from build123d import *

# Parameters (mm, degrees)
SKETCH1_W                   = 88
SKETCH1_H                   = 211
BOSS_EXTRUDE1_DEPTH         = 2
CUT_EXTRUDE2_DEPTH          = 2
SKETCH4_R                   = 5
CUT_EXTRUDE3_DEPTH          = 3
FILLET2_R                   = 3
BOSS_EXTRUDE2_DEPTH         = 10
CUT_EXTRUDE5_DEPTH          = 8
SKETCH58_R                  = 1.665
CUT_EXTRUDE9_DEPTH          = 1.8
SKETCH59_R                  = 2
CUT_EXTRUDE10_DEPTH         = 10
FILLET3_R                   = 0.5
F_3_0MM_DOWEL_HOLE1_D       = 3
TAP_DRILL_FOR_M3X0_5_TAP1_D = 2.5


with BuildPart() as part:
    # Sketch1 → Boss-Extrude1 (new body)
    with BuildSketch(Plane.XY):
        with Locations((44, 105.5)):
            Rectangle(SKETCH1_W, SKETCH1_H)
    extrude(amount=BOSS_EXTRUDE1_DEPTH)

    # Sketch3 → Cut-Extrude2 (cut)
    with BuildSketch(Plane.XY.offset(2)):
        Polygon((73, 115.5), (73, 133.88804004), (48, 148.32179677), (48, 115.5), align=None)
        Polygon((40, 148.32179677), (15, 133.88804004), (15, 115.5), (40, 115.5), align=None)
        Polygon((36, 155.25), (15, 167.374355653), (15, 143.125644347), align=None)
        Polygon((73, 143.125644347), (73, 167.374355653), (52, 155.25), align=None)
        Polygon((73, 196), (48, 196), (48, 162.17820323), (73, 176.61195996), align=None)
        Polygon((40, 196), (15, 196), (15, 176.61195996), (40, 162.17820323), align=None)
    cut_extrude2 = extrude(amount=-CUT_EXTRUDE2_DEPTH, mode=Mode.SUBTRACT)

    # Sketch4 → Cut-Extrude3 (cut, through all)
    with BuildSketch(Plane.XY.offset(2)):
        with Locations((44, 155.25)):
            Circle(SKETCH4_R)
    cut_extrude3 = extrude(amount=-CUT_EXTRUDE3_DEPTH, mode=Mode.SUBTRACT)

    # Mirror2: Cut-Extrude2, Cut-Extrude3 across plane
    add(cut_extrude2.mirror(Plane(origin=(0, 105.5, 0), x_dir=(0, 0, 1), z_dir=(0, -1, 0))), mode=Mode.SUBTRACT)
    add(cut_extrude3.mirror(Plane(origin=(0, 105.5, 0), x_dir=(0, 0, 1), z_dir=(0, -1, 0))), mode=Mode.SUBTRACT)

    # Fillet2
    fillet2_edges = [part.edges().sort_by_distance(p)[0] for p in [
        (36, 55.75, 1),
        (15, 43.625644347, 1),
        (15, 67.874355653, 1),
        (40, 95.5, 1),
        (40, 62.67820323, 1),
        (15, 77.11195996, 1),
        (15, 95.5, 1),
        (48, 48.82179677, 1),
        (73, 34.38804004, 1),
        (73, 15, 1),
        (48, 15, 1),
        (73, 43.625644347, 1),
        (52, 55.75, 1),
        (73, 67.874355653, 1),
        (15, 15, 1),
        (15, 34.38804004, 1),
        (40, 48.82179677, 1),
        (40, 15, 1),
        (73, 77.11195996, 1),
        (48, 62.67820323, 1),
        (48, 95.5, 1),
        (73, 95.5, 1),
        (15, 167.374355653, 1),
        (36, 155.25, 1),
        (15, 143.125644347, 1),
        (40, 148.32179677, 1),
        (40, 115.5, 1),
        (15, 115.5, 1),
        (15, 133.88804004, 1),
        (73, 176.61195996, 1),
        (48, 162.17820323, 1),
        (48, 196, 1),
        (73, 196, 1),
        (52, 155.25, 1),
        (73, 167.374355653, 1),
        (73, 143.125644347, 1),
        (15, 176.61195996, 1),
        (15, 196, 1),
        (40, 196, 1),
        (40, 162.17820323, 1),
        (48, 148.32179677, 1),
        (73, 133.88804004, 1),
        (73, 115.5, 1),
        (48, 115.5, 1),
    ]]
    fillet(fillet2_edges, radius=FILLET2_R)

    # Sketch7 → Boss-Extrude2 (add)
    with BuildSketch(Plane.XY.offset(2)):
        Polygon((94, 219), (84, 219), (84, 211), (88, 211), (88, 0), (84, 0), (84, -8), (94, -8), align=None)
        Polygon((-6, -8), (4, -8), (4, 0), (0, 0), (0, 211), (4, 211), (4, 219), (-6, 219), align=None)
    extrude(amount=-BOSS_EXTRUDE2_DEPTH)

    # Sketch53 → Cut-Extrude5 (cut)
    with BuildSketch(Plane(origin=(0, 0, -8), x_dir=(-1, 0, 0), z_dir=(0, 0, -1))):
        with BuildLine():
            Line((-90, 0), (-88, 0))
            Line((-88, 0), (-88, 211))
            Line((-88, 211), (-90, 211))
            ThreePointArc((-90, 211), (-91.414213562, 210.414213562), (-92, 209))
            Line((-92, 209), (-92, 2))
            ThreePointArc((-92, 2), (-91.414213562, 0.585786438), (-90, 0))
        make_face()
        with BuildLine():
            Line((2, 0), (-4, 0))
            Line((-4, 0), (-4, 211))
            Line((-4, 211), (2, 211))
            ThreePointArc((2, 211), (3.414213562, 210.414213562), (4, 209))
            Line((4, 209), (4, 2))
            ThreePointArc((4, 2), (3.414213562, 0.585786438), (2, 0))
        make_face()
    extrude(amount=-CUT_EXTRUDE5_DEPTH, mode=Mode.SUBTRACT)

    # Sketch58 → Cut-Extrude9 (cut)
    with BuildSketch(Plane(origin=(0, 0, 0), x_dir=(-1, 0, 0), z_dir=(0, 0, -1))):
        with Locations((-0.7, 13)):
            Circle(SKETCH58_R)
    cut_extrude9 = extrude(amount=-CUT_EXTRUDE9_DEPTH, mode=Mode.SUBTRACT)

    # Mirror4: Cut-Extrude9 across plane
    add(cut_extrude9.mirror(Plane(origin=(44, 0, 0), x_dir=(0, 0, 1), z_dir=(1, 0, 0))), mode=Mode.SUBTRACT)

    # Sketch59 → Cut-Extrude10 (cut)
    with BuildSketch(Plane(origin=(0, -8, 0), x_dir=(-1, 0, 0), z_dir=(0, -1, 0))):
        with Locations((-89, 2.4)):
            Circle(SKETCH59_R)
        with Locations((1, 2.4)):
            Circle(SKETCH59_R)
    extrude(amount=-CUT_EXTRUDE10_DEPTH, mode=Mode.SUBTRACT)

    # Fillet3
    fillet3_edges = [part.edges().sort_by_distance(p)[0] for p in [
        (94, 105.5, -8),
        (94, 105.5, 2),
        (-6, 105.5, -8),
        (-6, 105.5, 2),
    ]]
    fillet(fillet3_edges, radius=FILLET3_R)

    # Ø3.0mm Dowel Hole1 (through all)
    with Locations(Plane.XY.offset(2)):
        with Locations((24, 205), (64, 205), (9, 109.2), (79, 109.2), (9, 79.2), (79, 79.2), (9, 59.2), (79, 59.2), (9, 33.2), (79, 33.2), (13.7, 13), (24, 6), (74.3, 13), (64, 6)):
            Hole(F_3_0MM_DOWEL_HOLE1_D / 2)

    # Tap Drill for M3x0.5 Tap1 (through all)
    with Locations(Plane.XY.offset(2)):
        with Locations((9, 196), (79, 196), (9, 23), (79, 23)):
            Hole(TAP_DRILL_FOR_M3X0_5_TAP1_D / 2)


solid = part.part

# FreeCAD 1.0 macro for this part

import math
import FreeCAD as App
import Part
import Sketcher

V = App.Vector
Q = App.Units.Quantity


def edges_at(feature, points):
    """Names of the edges that pass closest to the given points."""
    edges = feature.Shape.Edges
    near = lambda p: min(range(len(edges)), key=lambda i: edges[i].distToShape(Part.Vertex(*p))[0])
    return sorted({f"Edge{near(p) + 1}" for p in points})

doc = App.newDocument("Part")
body = doc.addObject("PartDesign::Body", "Body")

# Sketch on XY plane
sketch1 = body.newObject("Sketcher::SketchObject", "Sketch")
sketch1.AttachmentSupport = (doc.getObject("XY_Plane"), [""])
sketch1.MapMode = "FlatFace"
sketch1.addGeometry([
    Part.LineSegment(V(0, 211, 0), V(0, 0, 0)),
    Part.LineSegment(V(0, 0, 0), V(88, 0, 0)),
    Part.LineSegment(V(88, 0, 0), V(88, 211, 0)),
    Part.LineSegment(V(88, 211, 0), V(0, 211, 0)),
], False)
sketch1.addConstraint([
    Sketcher.Constraint("Coincident", 0, 2, 1, 1),
    Sketcher.Constraint("Coincident", 1, 2, 2, 1),
    Sketcher.Constraint("Coincident", 2, 2, 3, 1),
    Sketcher.Constraint("Coincident", 3, 2, 0, 1),
    Sketcher.Constraint("Vertical", 0),
    Sketcher.Constraint("Horizontal", 1),
    Sketcher.Constraint("Vertical", 2),
    Sketcher.Constraint("Horizontal", 3),
    Sketcher.Constraint("Coincident", 0, 2, -1, 1),
    Sketcher.Constraint("DistanceX", 1, 1, 1, 2, 88.0),
    Sketcher.Constraint("DistanceY", 0, 2, 0, 1, 211.0),
])
pad1 = body.newObject("PartDesign::Pad", "Pad")
pad1.Profile = sketch1
pad1.Length = 2

# Sketch on XY plane
sketch2 = body.newObject("Sketcher::SketchObject", "Sketch001")
sketch2.AttachmentSupport = (doc.getObject("XY_Plane"), [""])
sketch2.MapMode = "FlatFace"
sketch2.AttachmentOffset = App.Placement(V(0, 0, 2), App.Rotation())
sketch2.addGeometry([
    Part.LineSegment(V(73, 116, 0), V(73, 134, 0)),  # 0
    Part.LineSegment(V(73, 134, 0), V(48, 148, 0)),  # 1
    Part.LineSegment(V(48, 148, 0), V(48, 116, 0)),  # 2
    Part.LineSegment(V(48, 116, 0), V(73, 116, 0)),  # 3
    Part.LineSegment(V(40, 148, 0), V(15, 134, 0)),  # 4
    Part.LineSegment(V(15, 134, 0), V(15, 116, 0)),  # 5
    Part.LineSegment(V(15, 116, 0), V(40, 116, 0)),  # 6
    Part.LineSegment(V(40, 116, 0), V(40, 148, 0)),  # 7
    Part.LineSegment(V(36, 155, 0), V(15, 167, 0)),  # 8
    Part.LineSegment(V(15, 167, 0), V(15, 143, 0)),  # 9
    Part.LineSegment(V(15, 143, 0), V(36, 155, 0)),  # 10
    Part.LineSegment(V(73, 143, 0), V(73, 167, 0)),  # 11
    Part.LineSegment(V(73, 167, 0), V(52, 155, 0)),  # 12
    Part.LineSegment(V(52, 155, 0), V(73, 143, 0)),  # 13
    Part.LineSegment(V(73, 196, 0), V(48, 196, 0)),  # 14
    Part.LineSegment(V(48, 196, 0), V(48, 162, 0)),  # 15
    Part.LineSegment(V(48, 162, 0), V(73, 177, 0)),  # 16
    Part.LineSegment(V(73, 177, 0), V(73, 196, 0)),  # 17
    Part.LineSegment(V(40, 196, 0), V(15, 196, 0)),  # 18
    Part.LineSegment(V(15, 196, 0), V(15, 177, 0)),  # 19
    Part.LineSegment(V(15, 177, 0), V(40, 162, 0)),  # 20
    Part.LineSegment(V(40, 162, 0), V(40, 196, 0)),  # 21
], False)
sketch2.addConstraint([
    Sketcher.Constraint("Coincident", 0, 2, 1, 1),
    Sketcher.Constraint("Coincident", 1, 2, 2, 1),
    Sketcher.Constraint("Coincident", 2, 2, 3, 1),
    Sketcher.Constraint("Coincident", 3, 2, 0, 1),
    Sketcher.Constraint("Coincident", 4, 2, 5, 1),
    Sketcher.Constraint("Coincident", 5, 2, 6, 1),
    Sketcher.Constraint("Coincident", 6, 2, 7, 1),
    Sketcher.Constraint("Coincident", 7, 2, 4, 1),
    Sketcher.Constraint("Coincident", 8, 2, 9, 1),
    Sketcher.Constraint("Coincident", 9, 2, 10, 1),
    Sketcher.Constraint("Coincident", 10, 2, 8, 1),
    Sketcher.Constraint("Coincident", 11, 2, 12, 1),
    Sketcher.Constraint("Coincident", 12, 2, 13, 1),
    Sketcher.Constraint("Coincident", 13, 2, 11, 1),
    Sketcher.Constraint("Coincident", 14, 2, 15, 1),
    Sketcher.Constraint("Coincident", 15, 2, 16, 1),
    Sketcher.Constraint("Coincident", 16, 2, 17, 1),
    Sketcher.Constraint("Coincident", 17, 2, 14, 1),
    Sketcher.Constraint("Coincident", 18, 2, 19, 1),
    Sketcher.Constraint("Coincident", 19, 2, 20, 1),
    Sketcher.Constraint("Coincident", 20, 2, 21, 1),
    Sketcher.Constraint("Coincident", 21, 2, 18, 1),
    Sketcher.Constraint("Vertical", 0),
    Sketcher.Constraint("Vertical", 2),
    Sketcher.Constraint("Horizontal", 3),
    Sketcher.Constraint("Vertical", 5),
    Sketcher.Constraint("Horizontal", 6),
    Sketcher.Constraint("Vertical", 7),
    Sketcher.Constraint("Vertical", 9),
    Sketcher.Constraint("Vertical", 11),
    Sketcher.Constraint("Horizontal", 14),
    Sketcher.Constraint("Vertical", 15),
    Sketcher.Constraint("Vertical", 17),
    Sketcher.Constraint("Horizontal", 18),
    Sketcher.Constraint("Vertical", 19),
    Sketcher.Constraint("Vertical", 21),
    Sketcher.Constraint("Parallel", 1, 8),
    Sketcher.Constraint("Parallel", 4, 10),
    Sketcher.Constraint("Parallel", 10, 12),
    Sketcher.Constraint("Parallel", 8, 13),
    Sketcher.Constraint("Parallel", 12, 16),
    Sketcher.Constraint("Parallel", 13, 20),
    Sketcher.Constraint("Horizontal", 0, 2, 4, 2),
    Sketcher.Constraint("Horizontal", 3, 2, 5, 2),
    Sketcher.Constraint("Horizontal", 1, 2, 7, 2),
    Sketcher.Constraint("Horizontal", 8, 2, 11, 2),
    Sketcher.Constraint("Horizontal", 10, 2, 12, 2),
    Sketcher.Constraint("Horizontal", 9, 2, 13, 2),
    Sketcher.Constraint("Horizontal", 17, 2, 18, 2),
    Sketcher.Constraint("Horizontal", 16, 2, 19, 2),
    Sketcher.Constraint("Horizontal", 15, 2, 20, 2),
    Sketcher.Constraint("Vertical", 5, 2, 8, 2),
    Sketcher.Constraint("Vertical", 3, 2, 11, 2),
    Sketcher.Constraint("Vertical", 2, 2, 14, 2),
    Sketcher.Constraint("Vertical", 13, 2, 16, 2),
    Sketcher.Constraint("Vertical", 9, 2, 18, 2),
    Sketcher.Constraint("DistanceX", 3, 1, 3, 2, 25.0),
    Sketcher.Constraint("Angle", 1, Q("150 deg")),
    Sketcher.Constraint("DistanceX", -1, 1, 0, 2, 73.0),
    Sketcher.Constraint("DistanceX", -1, 1, 4, 2, 15.0),
    Sketcher.Constraint("DistanceX", -1, 1, 10, 2, 36.0),
    Sketcher.Constraint("DistanceY", -1, 1, 14, 2, 196.0),
    Sketcher.Constraint("DistanceY", -1, 1, 2, 2, 115.5),
    Sketcher.Constraint("DistanceY", -1, 1, 10, 2, 155.25),
    Sketcher.Constraint("DistanceY", 0, 1, 0, 2, 18.38804),
    Sketcher.Constraint("DistanceY", 17, 1, 17, 2, 19.38804),
])
pocket1 = body.newObject("PartDesign::Pocket", "Pocket")
pocket1.Profile = sketch2
pocket1.Length = 2

# Sketch on XY plane
sketch3 = body.newObject("Sketcher::SketchObject", "Sketch002")
sketch3.AttachmentSupport = (doc.getObject("XY_Plane"), [""])
sketch3.MapMode = "FlatFace"
sketch3.AttachmentOffset = App.Placement(V(0, 0, 2), App.Rotation())
sketch3.addGeometry(Part.Circle(V(44, 155, 0), V(0, 0, 1), 5), False)
sketch3.addConstraint([
    Sketcher.Constraint("Diameter", 0, 10.0),
    Sketcher.Constraint("DistanceX", -1, 1, 0, 3, 44.0),
    Sketcher.Constraint("DistanceY", -1, 1, 0, 3, 155.25),
])
pocket2 = body.newObject("PartDesign::Pocket", "Pocket001")
pocket2.Profile = sketch3
pocket2.Type = "ThroughAll"
doc.recompute()

datumplane = body.newObject("PartDesign::Plane", "DatumPlane")
datumplane.AttachmentSupport = (doc.getObject("XZ_Plane"), [""])
datumplane.MapMode = "FlatFace"
datumplane.AttachmentOffset = App.Placement(V(0, 0, -105.5), App.Rotation())
mirrored = body.newObject("PartDesign::Mirrored", "Mirrored")
mirrored.Originals = [pocket1, pocket2]
mirrored.MirrorPlane = (datumplane, [""])
body.Tip = mirrored
doc.recompute()

fillet = body.newObject("PartDesign::Fillet", "Fillet")
fillet.Base = (mirrored, edges_at(mirrored, [
    (36, 55.75, 1),
    (15, 43.626, 1),
    (15, 67.874, 1),
    (40, 95.5, 1),
    (40, 62.678, 1),
    (15, 77.112, 1),
    (15, 95.5, 1),
    (48, 48.822, 1),
    (73, 34.388, 1),
    (73, 15, 1),
    (48, 15, 1),
    (73, 43.626, 1),
    (52, 55.75, 1),
    (73, 67.874, 1),
    (15, 15, 1),
    (15, 34.388, 1),
    (40, 48.822, 1),
    (40, 15, 1),
    (73, 77.112, 1),
    (48, 62.678, 1),
    (48, 95.5, 1),
    (73, 95.5, 1),
    (15, 167.374, 1),
    (36, 155.25, 1),
    (15, 143.126, 1),
    (40, 148.322, 1),
    (40, 115.5, 1),
    (15, 115.5, 1),
    (15, 133.888, 1),
    (73, 176.612, 1),
    (48, 162.178, 1),
    (48, 196, 1),
    (73, 196, 1),
    (52, 155.25, 1),
    (73, 167.374, 1),
    (73, 143.126, 1),
    (15, 176.612, 1),
    (15, 196, 1),
    (40, 196, 1),
    (40, 162.178, 1),
    (48, 148.322, 1),
    (73, 133.888, 1),
    (73, 115.5, 1),
    (48, 115.5, 1),
]))
fillet.Radius = 3

# Sketch on XY plane
sketch4 = body.newObject("Sketcher::SketchObject", "Sketch003")
sketch4.AttachmentSupport = (doc.getObject("XY_Plane"), [""])
sketch4.MapMode = "FlatFace"
sketch4.AttachmentOffset = App.Placement(V(0, 0, 2), App.Rotation())
sketch4.addGeometry([
    Part.LineSegment(V(94, 219, 0), V(84, 219, 0)),  # 0
    Part.LineSegment(V(84, 219, 0), V(84, 211, 0)),  # 1
    Part.LineSegment(V(84, 211, 0), V(88, 211, 0)),  # 2
    Part.LineSegment(V(88, 211, 0), V(88, 0, 0)),  # 3
    Part.LineSegment(V(88, 0, 0), V(84, 0, 0)),  # 4
    Part.LineSegment(V(84, 0, 0), V(84, -8, 0)),  # 5
    Part.LineSegment(V(84, -8, 0), V(94, -8, 0)),  # 6
    Part.LineSegment(V(94, -8, 0), V(94, 219, 0)),  # 7
    Part.LineSegment(V(-6, -8, 0), V(4, -8, 0)),  # 8
    Part.LineSegment(V(4, -8, 0), V(4, 0, 0)),  # 9
    Part.LineSegment(V(4, 0, 0), V(0, 0, 0)),  # 10
    Part.LineSegment(V(0, 0, 0), V(0, 211, 0)),  # 11
    Part.LineSegment(V(0, 211, 0), V(4, 211, 0)),  # 12
    Part.LineSegment(V(4, 211, 0), V(4, 219, 0)),  # 13
    Part.LineSegment(V(4, 219, 0), V(-6, 219, 0)),  # 14
    Part.LineSegment(V(-6, 219, 0), V(-6, -8, 0)),  # 15
], False)
sketch4.addConstraint([
    Sketcher.Constraint("Coincident", 0, 2, 1, 1),
    Sketcher.Constraint("Coincident", 1, 2, 2, 1),
    Sketcher.Constraint("Coincident", 2, 2, 3, 1),
    Sketcher.Constraint("Coincident", 3, 2, 4, 1),
    Sketcher.Constraint("Coincident", 4, 2, 5, 1),
    Sketcher.Constraint("Coincident", 5, 2, 6, 1),
    Sketcher.Constraint("Coincident", 6, 2, 7, 1),
    Sketcher.Constraint("Coincident", 7, 2, 0, 1),
    Sketcher.Constraint("Coincident", 8, 2, 9, 1),
    Sketcher.Constraint("Coincident", 9, 2, 10, 1),
    Sketcher.Constraint("Coincident", 10, 2, 11, 1),
    Sketcher.Constraint("Coincident", 11, 2, 12, 1),
    Sketcher.Constraint("Coincident", 12, 2, 13, 1),
    Sketcher.Constraint("Coincident", 13, 2, 14, 1),
    Sketcher.Constraint("Coincident", 14, 2, 15, 1),
    Sketcher.Constraint("Coincident", 15, 2, 8, 1),
    Sketcher.Constraint("Horizontal", 0),
    Sketcher.Constraint("Vertical", 1),
    Sketcher.Constraint("Horizontal", 2),
    Sketcher.Constraint("Vertical", 3),
    Sketcher.Constraint("Horizontal", 4),
    Sketcher.Constraint("Vertical", 5),
    Sketcher.Constraint("Horizontal", 6),
    Sketcher.Constraint("Vertical", 7),
    Sketcher.Constraint("Horizontal", 8),
    Sketcher.Constraint("Vertical", 9),
    Sketcher.Constraint("Horizontal", 10),
    Sketcher.Constraint("Vertical", 11),
    Sketcher.Constraint("Horizontal", 12),
    Sketcher.Constraint("Vertical", 13),
    Sketcher.Constraint("Horizontal", 14),
    Sketcher.Constraint("Vertical", 15),
    Sketcher.Constraint("Coincident", 10, 2, -1, 1),
    Sketcher.Constraint("PointOnObject", 3, 2, -1),
    Sketcher.Constraint("Horizontal", 6, 2, 8, 2),
    Sketcher.Constraint("Horizontal", 2, 2, 11, 2),
    Sketcher.Constraint("Horizontal", 7, 2, 13, 2),
    Sketcher.Constraint("Vertical", 1, 2, 4, 2),
    Sketcher.Constraint("Vertical", 9, 2, 12, 2),
    Sketcher.Constraint("Equal", 6, 8),
    Sketcher.Constraint("Equal", 4, 10),
    Sketcher.Constraint("Equal", 1, 5),
    Sketcher.Constraint("DistanceX", 0, 2, 0, 1, 10.0),
    Sketcher.Constraint("DistanceX", 2, 1, 2, 2, 4.0),
    Sketcher.Constraint("DistanceY", 1, 2, 1, 1, 8.0),
    Sketcher.Constraint("DistanceY", 3, 2, 3, 1, 211.0),
    Sketcher.Constraint("DistanceX", -1, 1, 0, 2, 84.0),
])
pad2 = body.newObject("PartDesign::Pad", "Pad001")
pad2.Profile = sketch4
pad2.Length = 10
pad2.Reversed = True

# Sketch on XY plane
sketch5 = body.newObject("Sketcher::SketchObject", "Sketch004")
sketch5.AttachmentSupport = (doc.getObject("XY_Plane"), [""])
sketch5.MapMode = "FlatFace"
sketch5.AttachmentOffset = App.Placement(V(0, 0, -8), App.Rotation())
sketch5.addGeometry([
    Part.LineSegment(V(90, 0, 0), V(88, 0, 0)),  # 0
    Part.LineSegment(V(88, 0, 0), V(88, 211, 0)),  # 1
    Part.LineSegment(V(88, 211, 0), V(90, 211, 0)),  # 2
    Part.ArcOfCircle(Part.Circle(V(90, 209, 0), V(0, 0, 1), 2), math.radians(0), math.radians(90)),  # 3
    Part.LineSegment(V(92, 209, 0), V(92, 2, 0)),  # 4
    Part.ArcOfCircle(Part.Circle(V(90, 2, 0), V(0, 0, 1), 2), math.radians(-90), math.radians(0)),  # 5
    Part.LineSegment(V(4, 0, 0), V(-2, 0, 0)),  # 6
    Part.ArcOfCircle(Part.Circle(V(-2, 2, 0), V(0, 0, 1), 2), math.radians(-180), math.radians(-90)),  # 7
    Part.LineSegment(V(-4, 2, 0), V(-4, 209, 0)),  # 8
    Part.ArcOfCircle(Part.Circle(V(-2, 209, 0), V(0, 0, 1), 2), math.radians(90), math.radians(180)),  # 9
    Part.LineSegment(V(-2, 211, 0), V(4, 211, 0)),  # 10
    Part.LineSegment(V(4, 211, 0), V(4, 0, 0)),  # 11
], False)
sketch5.addConstraint([
    Sketcher.Constraint("Coincident", 0, 2, 1, 1),
    Sketcher.Constraint("Coincident", 1, 2, 2, 1),
    Sketcher.Constraint("Tangent", 2, 2, 3, 2),
    Sketcher.Constraint("Tangent", 3, 1, 4, 1),
    Sketcher.Constraint("Tangent", 4, 2, 5, 2),
    Sketcher.Constraint("Tangent", 5, 1, 0, 1),
    Sketcher.Constraint("Tangent", 6, 2, 7, 2),
    Sketcher.Constraint("Tangent", 7, 1, 8, 1),
    Sketcher.Constraint("Tangent", 8, 2, 9, 2),
    Sketcher.Constraint("Tangent", 9, 1, 10, 1),
    Sketcher.Constraint("Coincident", 10, 2, 11, 1),
    Sketcher.Constraint("Coincident", 11, 2, 6, 1),
    Sketcher.Constraint("Horizontal", 0),
    Sketcher.Constraint("Vertical", 1),
    Sketcher.Constraint("Horizontal", 2),
    Sketcher.Constraint("Vertical", 4),
    Sketcher.Constraint("Horizontal", 6),
    Sketcher.Constraint("Vertical", 8),
    Sketcher.Constraint("Horizontal", 10),
    Sketcher.Constraint("Vertical", 11),
    Sketcher.Constraint("Equal", 3, 5),
    Sketcher.Constraint("Equal", 5, 7),
    Sketcher.Constraint("Equal", 7, 9),
    Sketcher.Constraint("PointOnObject", 0, 2, -1),
    Sketcher.Constraint("PointOnObject", 6, 2, -1),
    Sketcher.Constraint("Horizontal", 3, 3, 9, 3),
    Sketcher.Constraint("Radius", 3, 2.0),
    Sketcher.Constraint("DistanceX", 0, 2, 0, 1, 2.0),
    Sketcher.Constraint("DistanceX", 6, 2, 6, 1, 6.0),
    Sketcher.Constraint("DistanceY", 1, 1, 1, 2, 211.0),
    Sketcher.Constraint("DistanceX", -1, 1, 3, 3, 90.0),
    Sketcher.Constraint("DistanceX", 7, 3, -1, 1, 2.0),
])
pocket3 = body.newObject("PartDesign::Pocket", "Pocket002")
pocket3.Profile = sketch5
pocket3.Length = 8
pocket3.Reversed = True

# Sketch on XY plane
sketch6 = body.newObject("Sketcher::SketchObject", "Sketch005")
sketch6.AttachmentSupport = (doc.getObject("XY_Plane"), [""])
sketch6.MapMode = "FlatFace"
sketch6.addGeometry(Part.Circle(V(0.7, 13, 0), V(0, 0, 1), 1.7), False)
sketch6.addConstraint([
    Sketcher.Constraint("Diameter", 0, 3.33),
    Sketcher.Constraint("DistanceY", -1, 1, 0, 3, 13.0),
    Sketcher.Constraint("DistanceX", -1, 1, 0, 3, 0.7),
])
pocket4 = body.newObject("PartDesign::Pocket", "Pocket003")
pocket4.Profile = sketch6
pocket4.Length = 1.8
pocket4.Reversed = True
doc.recompute()

datumplane2 = body.newObject("PartDesign::Plane", "DatumPlane001")
datumplane2.AttachmentSupport = (doc.getObject("YZ_Plane"), [""])
datumplane2.MapMode = "FlatFace"
datumplane2.AttachmentOffset = App.Placement(V(0, 0, 44), App.Rotation())
mirrored2 = body.newObject("PartDesign::Mirrored", "Mirrored001")
mirrored2.Originals = [pocket4]
mirrored2.MirrorPlane = (datumplane2, [""])
body.Tip = mirrored2

# Sketch on XZ plane
sketch7 = body.newObject("Sketcher::SketchObject", "Sketch006")
sketch7.AttachmentSupport = (doc.getObject("XZ_Plane"), [""])
sketch7.MapMode = "FlatFace"
sketch7.AttachmentOffset = App.Placement(V(0, 0, 8), App.Rotation())
sketch7.addGeometry([
    Part.Circle(V(89, -2.4, 0), V(0, 0, 1), 2),
    Part.Circle(V(-1, -2.4, 0), V(0, 0, 1), 2),
], False)
sketch7.addConstraint([
    Sketcher.Constraint("Equal", 0, 1),
    Sketcher.Constraint("Horizontal", 0, 3, 1, 3),
    Sketcher.Constraint("Diameter", 0, 4.0),
    Sketcher.Constraint("DistanceX", -1, 1, 0, 3, 89.0),
    Sketcher.Constraint("DistanceX", 1, 3, -1, 1, 1.0),
    Sketcher.Constraint("DistanceY", 0, 3, -1, 1, 2.4),
])
pocket5 = body.newObject("PartDesign::Pocket", "Pocket004")
pocket5.Profile = sketch7
pocket5.Length = 10
doc.recompute()

fillet2 = body.newObject("PartDesign::Fillet", "Fillet001")
fillet2.Base = (pocket5, edges_at(pocket5, [
    (94, 105.5, -8),
    (94, 105.5, 2),
    (-6, 105.5, -8),
    (-6, 105.5, 2),
]))
fillet2.Radius = 0.5

# Sketch on XY plane
sketch8 = body.newObject("Sketcher::SketchObject", "Sketch007")
sketch8.AttachmentSupport = (doc.getObject("XY_Plane"), [""])
sketch8.MapMode = "FlatFace"
sketch8.AttachmentOffset = App.Placement(V(0, 0, 2), App.Rotation())
sketch8.addGeometry([
    Part.Circle(V(24, 205, 0), V(0, 0, 1), 1.5),  # 0
    Part.Circle(V(64, 205, 0), V(0, 0, 1), 1.5),  # 1
    Part.Circle(V(9, 109.2, 0), V(0, 0, 1), 1.5),  # 2
    Part.Circle(V(79, 109.2, 0), V(0, 0, 1), 1.5),  # 3
    Part.Circle(V(9, 79.2, 0), V(0, 0, 1), 1.5),  # 4
    Part.Circle(V(79, 79.2, 0), V(0, 0, 1), 1.5),  # 5
    Part.Circle(V(9, 59.2, 0), V(0, 0, 1), 1.5),  # 6
    Part.Circle(V(79, 59.2, 0), V(0, 0, 1), 1.5),  # 7
    Part.Circle(V(9, 33.2, 0), V(0, 0, 1), 1.5),  # 8
    Part.Circle(V(79, 33.2, 0), V(0, 0, 1), 1.5),  # 9
    Part.Circle(V(13.7, 13, 0), V(0, 0, 1), 1.5),  # 10
    Part.Circle(V(24, 6, 0), V(0, 0, 1), 1.5),  # 11
    Part.Circle(V(74.3, 13, 0), V(0, 0, 1), 1.5),  # 12
    Part.Circle(V(64, 6, 0), V(0, 0, 1), 1.5),  # 13
], False)
sketch8.addConstraint([
    Sketcher.Constraint("Equal", 0, 1),
    Sketcher.Constraint("Equal", 1, 2),
    Sketcher.Constraint("Equal", 2, 3),
    Sketcher.Constraint("Equal", 3, 4),
    Sketcher.Constraint("Equal", 4, 5),
    Sketcher.Constraint("Equal", 5, 6),
    Sketcher.Constraint("Equal", 6, 7),
    Sketcher.Constraint("Equal", 7, 8),
    Sketcher.Constraint("Equal", 8, 9),
    Sketcher.Constraint("Equal", 9, 10),
    Sketcher.Constraint("Equal", 10, 11),
    Sketcher.Constraint("Equal", 11, 12),
    Sketcher.Constraint("Equal", 12, 13),
    Sketcher.Constraint("Horizontal", 0, 3, 1, 3),
    Sketcher.Constraint("Horizontal", 2, 3, 3, 3),
    Sketcher.Constraint("Horizontal", 4, 3, 5, 3),
    Sketcher.Constraint("Horizontal", 6, 3, 7, 3),
    Sketcher.Constraint("Horizontal", 8, 3, 9, 3),
    Sketcher.Constraint("Horizontal", 10, 3, 12, 3),
    Sketcher.Constraint("Horizontal", 11, 3, 13, 3),
    Sketcher.Constraint("Vertical", 2, 3, 4, 3),
    Sketcher.Constraint("Vertical", 3, 3, 5, 3),
    Sketcher.Constraint("Vertical", 4, 3, 6, 3),
    Sketcher.Constraint("Vertical", 5, 3, 7, 3),
    Sketcher.Constraint("Vertical", 6, 3, 8, 3),
    Sketcher.Constraint("Vertical", 7, 3, 9, 3),
    Sketcher.Constraint("Vertical", 0, 3, 11, 3),
    Sketcher.Constraint("Vertical", 1, 3, 13, 3),
    Sketcher.Constraint("Diameter", 0, 3.0),
    Sketcher.Constraint("DistanceX", -1, 1, 0, 3, 24.0),
    Sketcher.Constraint("DistanceY", -1, 1, 0, 3, 205.0),
    Sketcher.Constraint("DistanceX", -1, 1, 1, 3, 64.0),
    Sketcher.Constraint("DistanceX", -1, 1, 2, 3, 9.0),
    Sketcher.Constraint("DistanceX", -1, 1, 3, 3, 79.0),
    Sketcher.Constraint("DistanceY", -1, 1, 10, 3, 13.0),
    Sketcher.Constraint("DistanceY", -1, 1, 11, 3, 6.0),
    Sketcher.Constraint("DistanceY", 4, 3, 2, 3, 30.0),
    Sketcher.Constraint("DistanceY", 6, 3, 4, 3, 20.0),
    Sketcher.Constraint("DistanceY", 8, 3, 6, 3, 26.0),
    Sketcher.Constraint("DistanceY", -1, 1, 2, 3, 109.2),
    Sketcher.Constraint("DistanceX", -1, 1, 10, 3, 13.7),
    Sketcher.Constraint("DistanceX", -1, 1, 12, 3, 74.3),
])
doc.recompute()
hole = body.newObject("PartDesign::Hole", "Hole")
hole.Profile = sketch8
hole.ThreadType = "None"
hole.Diameter = 3
hole.DepthType = "ThroughAll"

# Sketch on XY plane
sketch9 = body.newObject("Sketcher::SketchObject", "Sketch008")
sketch9.AttachmentSupport = (doc.getObject("XY_Plane"), [""])
sketch9.MapMode = "FlatFace"
sketch9.AttachmentOffset = App.Placement(V(0, 0, 2), App.Rotation())
sketch9.addGeometry([
    Part.Circle(V(9, 196, 0), V(0, 0, 1), 1.2),
    Part.Circle(V(79, 196, 0), V(0, 0, 1), 1.2),
    Part.Circle(V(9, 23, 0), V(0, 0, 1), 1.2),
    Part.Circle(V(79, 23, 0), V(0, 0, 1), 1.2),
], False)
sketch9.addConstraint([
    Sketcher.Constraint("Equal", 0, 1),
    Sketcher.Constraint("Equal", 1, 2),
    Sketcher.Constraint("Equal", 2, 3),
    Sketcher.Constraint("Horizontal", 0, 3, 1, 3),
    Sketcher.Constraint("Horizontal", 2, 3, 3, 3),
    Sketcher.Constraint("Vertical", 0, 3, 2, 3),
    Sketcher.Constraint("Vertical", 1, 3, 3, 3),
    Sketcher.Constraint("Diameter", 0, 2.5),
    Sketcher.Constraint("DistanceX", -1, 1, 0, 3, 9.0),
    Sketcher.Constraint("DistanceY", -1, 1, 0, 3, 196.0),
    Sketcher.Constraint("DistanceX", -1, 1, 1, 3, 79.0),
    Sketcher.Constraint("DistanceY", -1, 1, 2, 3, 23.0),
])
doc.recompute()
hole2 = body.newObject("PartDesign::Hole", "Hole001")
hole2.Profile = sketch9
hole2.ThreadType = "None"
hole2.Diameter = 2.5
hole2.DepthType = "ThroughAll"

doc.recompute()
